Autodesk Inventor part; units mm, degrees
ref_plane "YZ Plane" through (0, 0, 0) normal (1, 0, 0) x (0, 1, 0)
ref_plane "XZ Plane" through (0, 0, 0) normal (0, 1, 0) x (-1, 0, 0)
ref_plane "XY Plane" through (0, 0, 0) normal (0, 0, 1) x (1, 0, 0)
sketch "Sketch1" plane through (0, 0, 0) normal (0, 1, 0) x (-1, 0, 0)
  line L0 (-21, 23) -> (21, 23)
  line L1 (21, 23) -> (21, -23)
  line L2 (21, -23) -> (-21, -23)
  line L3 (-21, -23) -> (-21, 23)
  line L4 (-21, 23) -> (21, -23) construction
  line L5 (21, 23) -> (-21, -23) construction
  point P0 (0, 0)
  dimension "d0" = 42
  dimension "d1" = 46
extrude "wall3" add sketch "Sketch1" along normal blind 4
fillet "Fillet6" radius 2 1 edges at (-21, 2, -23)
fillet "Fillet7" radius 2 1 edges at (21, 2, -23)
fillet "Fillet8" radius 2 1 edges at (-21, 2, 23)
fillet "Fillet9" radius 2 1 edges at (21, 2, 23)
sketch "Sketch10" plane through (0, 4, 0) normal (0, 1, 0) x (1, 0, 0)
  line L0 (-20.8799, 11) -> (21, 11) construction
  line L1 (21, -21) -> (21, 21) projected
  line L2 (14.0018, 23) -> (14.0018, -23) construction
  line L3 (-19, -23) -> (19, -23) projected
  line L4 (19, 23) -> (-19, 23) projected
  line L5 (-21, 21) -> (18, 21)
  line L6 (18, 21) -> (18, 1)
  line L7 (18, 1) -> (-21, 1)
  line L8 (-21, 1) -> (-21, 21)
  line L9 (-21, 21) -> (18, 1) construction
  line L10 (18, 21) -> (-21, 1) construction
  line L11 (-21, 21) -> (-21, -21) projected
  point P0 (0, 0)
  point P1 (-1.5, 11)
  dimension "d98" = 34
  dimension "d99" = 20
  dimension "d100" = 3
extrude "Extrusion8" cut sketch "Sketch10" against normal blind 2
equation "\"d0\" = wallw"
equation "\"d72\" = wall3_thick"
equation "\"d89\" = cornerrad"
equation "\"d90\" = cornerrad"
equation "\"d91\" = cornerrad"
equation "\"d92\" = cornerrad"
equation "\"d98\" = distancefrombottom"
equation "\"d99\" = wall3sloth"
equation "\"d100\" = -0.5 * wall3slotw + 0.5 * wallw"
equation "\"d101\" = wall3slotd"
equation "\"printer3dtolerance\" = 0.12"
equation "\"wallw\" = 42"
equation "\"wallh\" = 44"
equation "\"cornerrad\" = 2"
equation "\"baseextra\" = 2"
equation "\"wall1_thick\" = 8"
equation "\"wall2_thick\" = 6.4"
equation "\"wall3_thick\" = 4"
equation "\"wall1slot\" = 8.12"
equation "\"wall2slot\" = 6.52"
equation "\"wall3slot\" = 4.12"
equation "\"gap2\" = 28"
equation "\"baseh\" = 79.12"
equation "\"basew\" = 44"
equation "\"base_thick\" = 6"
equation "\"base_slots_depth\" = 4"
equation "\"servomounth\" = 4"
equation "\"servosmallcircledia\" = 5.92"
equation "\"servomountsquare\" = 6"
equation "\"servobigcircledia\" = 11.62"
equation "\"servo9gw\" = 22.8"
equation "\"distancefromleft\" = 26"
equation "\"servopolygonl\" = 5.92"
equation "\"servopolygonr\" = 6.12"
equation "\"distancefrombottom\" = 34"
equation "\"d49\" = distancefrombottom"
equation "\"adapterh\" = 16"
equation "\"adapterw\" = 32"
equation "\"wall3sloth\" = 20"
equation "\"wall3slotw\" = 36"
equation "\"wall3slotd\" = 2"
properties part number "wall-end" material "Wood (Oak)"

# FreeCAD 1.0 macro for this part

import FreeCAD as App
import Part
import Sketcher
from FreeCAD import Vector


def edges_at(feature, points):
    """Names of the edges that pass closest to the given points."""
    edges = feature.Shape.Edges
    near = lambda p: min(range(len(edges)), key=lambda i: edges[i].distToShape(Part.Vertex(*p))[0])
    return sorted({f"Edge{near(p) + 1}" for p in points})


def add_polygon(sketch, points):
    """Adds a closed chain of lines whose ends are joined by coincident constraints."""
    first, n = sketch.GeometryCount, len(points)
    for a, b in zip(points, points[1:] + points[:1]):
        sketch.addGeometry(Part.LineSegment(App.Vector(*a, 0), App.Vector(*b, 0)), False)
    for i in range(n):
        sketch.addConstraint(Sketcher.Constraint("Coincident", first + i, 2, first + (i + 1) % n, 1))

doc = App.newDocument("Part")
params = doc.addObject("Spreadsheet::Sheet", "Params")
for row, (alias, value) in enumerate([
    ("sketch1_width", "42 mm"),
    ("sketch1_height", "46 mm"),
    ("pad1_length", "4 mm"),
    ("fillet_radius", "2 mm"),
    ("fillet2_radius", "2 mm"),
    ("fillet3_radius", "2 mm"),
    ("fillet4_radius", "2 mm"),
    ("sketch2_height", "20 mm"),
    ("sketch2_width", "39 mm"),
    ("pocket1_length", "2 mm"),
], start=1):
    params.set(f"A{row}", alias)
    params.set(f"B{row}", "=" + value)
    params.setAlias(f"B{row}", alias)

body = doc.addObject("PartDesign::Body", "Body")

sketch1 = body.newObject("Sketcher::SketchObject", "Sketch")
sketch1.AttachmentSupport = (doc.getObject("XZ_Plane"), [""])
sketch1.MapMode = "FlatFace"
add_polygon(sketch1, [(-21, 23), (21, 23), (21, -23), (-21, -23)])
sketch1.addConstraint(Sketcher.Constraint("Horizontal", 0))
sketch1.addConstraint(Sketcher.Constraint("Vertical", 1))
sketch1.addConstraint(Sketcher.Constraint("Horizontal", 2))
sketch1.addConstraint(Sketcher.Constraint("Vertical", 3))
sketch1.addConstraint(Sketcher.Constraint("Symmetric", 0, 2, 2, 2, -1, 1))
sketch1.addConstraint(Sketcher.Constraint("DistanceX", 0, 1, 0, 2, 42.0))
sketch1.addConstraint(Sketcher.Constraint("DistanceY", 1, 2, 1, 1, 46.0))
sketch1.setExpression("Constraints[9]", "Params.sketch1_width")
sketch1.setExpression("Constraints[10]", "Params.sketch1_height")
pad1 = body.newObject("PartDesign::Pad", "Pad")
pad1.Profile = sketch1
pad1.setExpression("Length", "Params.pad1_length")
pad1.Reversed = True
doc.recompute()

fillet = body.newObject("PartDesign::Fillet", "Fillet")
fillet.Base = (pad1, edges_at(pad1, [(-21, 2, -23)]))
fillet.setExpression("Radius", "Params.fillet_radius")
doc.recompute()

fillet2 = body.newObject("PartDesign::Fillet", "Fillet001")
fillet2.Base = (fillet, edges_at(fillet, [(21, 2, -23)]))
fillet2.setExpression("Radius", "Params.fillet2_radius")
doc.recompute()

fillet3 = body.newObject("PartDesign::Fillet", "Fillet002")
fillet3.Base = (fillet2, edges_at(fillet2, [(-21, 2, 23)]))
fillet3.setExpression("Radius", "Params.fillet3_radius")
doc.recompute()

fillet4 = body.newObject("PartDesign::Fillet", "Fillet003")
fillet4.Base = (fillet3, edges_at(fillet3, [(21, 2, 23)]))
fillet4.setExpression("Radius", "Params.fillet4_radius")

sketch2 = body.newObject("Sketcher::SketchObject", "Sketch001")
sketch2.AttachmentSupport = (doc.getObject("XZ_Plane"), [""])
sketch2.MapMode = "FlatFace"
sketch2.AttachmentOffset = App.Placement(Vector(0, 0, -4), App.Rotation())
add_polygon(sketch2, [(18, -21), (-21, -21), (-21, -1), (18, -1)])
sketch2.addConstraint(Sketcher.Constraint("Horizontal", 0))
sketch2.addConstraint(Sketcher.Constraint("Vertical", 1))
sketch2.addConstraint(Sketcher.Constraint("Horizontal", 2))
sketch2.addConstraint(Sketcher.Constraint("Vertical", 3))
sketch2.addConstraint(Sketcher.Constraint("DistanceY", 1, 1, 1, 2, 20.0))
sketch2.addConstraint(Sketcher.Constraint("DistanceX", 0, 2, 0, 1, 39.0))
sketch2.addConstraint(Sketcher.Constraint("DistanceX", 0, 2, -1, 1, 21.0))
sketch2.addConstraint(Sketcher.Constraint("DistanceY", 0, 2, -1, 1, 21.0))
sketch2.setExpression("Constraints[8]", "Params.sketch2_height")
sketch2.setExpression("Constraints[9]", "Params.sketch2_width")
pocket1 = body.newObject("PartDesign::Pocket", "Pocket")
pocket1.Profile = sketch2
pocket1.setExpression("Length", "Params.pocket1_length")
pocket1.Reversed = True

doc.recompute()
